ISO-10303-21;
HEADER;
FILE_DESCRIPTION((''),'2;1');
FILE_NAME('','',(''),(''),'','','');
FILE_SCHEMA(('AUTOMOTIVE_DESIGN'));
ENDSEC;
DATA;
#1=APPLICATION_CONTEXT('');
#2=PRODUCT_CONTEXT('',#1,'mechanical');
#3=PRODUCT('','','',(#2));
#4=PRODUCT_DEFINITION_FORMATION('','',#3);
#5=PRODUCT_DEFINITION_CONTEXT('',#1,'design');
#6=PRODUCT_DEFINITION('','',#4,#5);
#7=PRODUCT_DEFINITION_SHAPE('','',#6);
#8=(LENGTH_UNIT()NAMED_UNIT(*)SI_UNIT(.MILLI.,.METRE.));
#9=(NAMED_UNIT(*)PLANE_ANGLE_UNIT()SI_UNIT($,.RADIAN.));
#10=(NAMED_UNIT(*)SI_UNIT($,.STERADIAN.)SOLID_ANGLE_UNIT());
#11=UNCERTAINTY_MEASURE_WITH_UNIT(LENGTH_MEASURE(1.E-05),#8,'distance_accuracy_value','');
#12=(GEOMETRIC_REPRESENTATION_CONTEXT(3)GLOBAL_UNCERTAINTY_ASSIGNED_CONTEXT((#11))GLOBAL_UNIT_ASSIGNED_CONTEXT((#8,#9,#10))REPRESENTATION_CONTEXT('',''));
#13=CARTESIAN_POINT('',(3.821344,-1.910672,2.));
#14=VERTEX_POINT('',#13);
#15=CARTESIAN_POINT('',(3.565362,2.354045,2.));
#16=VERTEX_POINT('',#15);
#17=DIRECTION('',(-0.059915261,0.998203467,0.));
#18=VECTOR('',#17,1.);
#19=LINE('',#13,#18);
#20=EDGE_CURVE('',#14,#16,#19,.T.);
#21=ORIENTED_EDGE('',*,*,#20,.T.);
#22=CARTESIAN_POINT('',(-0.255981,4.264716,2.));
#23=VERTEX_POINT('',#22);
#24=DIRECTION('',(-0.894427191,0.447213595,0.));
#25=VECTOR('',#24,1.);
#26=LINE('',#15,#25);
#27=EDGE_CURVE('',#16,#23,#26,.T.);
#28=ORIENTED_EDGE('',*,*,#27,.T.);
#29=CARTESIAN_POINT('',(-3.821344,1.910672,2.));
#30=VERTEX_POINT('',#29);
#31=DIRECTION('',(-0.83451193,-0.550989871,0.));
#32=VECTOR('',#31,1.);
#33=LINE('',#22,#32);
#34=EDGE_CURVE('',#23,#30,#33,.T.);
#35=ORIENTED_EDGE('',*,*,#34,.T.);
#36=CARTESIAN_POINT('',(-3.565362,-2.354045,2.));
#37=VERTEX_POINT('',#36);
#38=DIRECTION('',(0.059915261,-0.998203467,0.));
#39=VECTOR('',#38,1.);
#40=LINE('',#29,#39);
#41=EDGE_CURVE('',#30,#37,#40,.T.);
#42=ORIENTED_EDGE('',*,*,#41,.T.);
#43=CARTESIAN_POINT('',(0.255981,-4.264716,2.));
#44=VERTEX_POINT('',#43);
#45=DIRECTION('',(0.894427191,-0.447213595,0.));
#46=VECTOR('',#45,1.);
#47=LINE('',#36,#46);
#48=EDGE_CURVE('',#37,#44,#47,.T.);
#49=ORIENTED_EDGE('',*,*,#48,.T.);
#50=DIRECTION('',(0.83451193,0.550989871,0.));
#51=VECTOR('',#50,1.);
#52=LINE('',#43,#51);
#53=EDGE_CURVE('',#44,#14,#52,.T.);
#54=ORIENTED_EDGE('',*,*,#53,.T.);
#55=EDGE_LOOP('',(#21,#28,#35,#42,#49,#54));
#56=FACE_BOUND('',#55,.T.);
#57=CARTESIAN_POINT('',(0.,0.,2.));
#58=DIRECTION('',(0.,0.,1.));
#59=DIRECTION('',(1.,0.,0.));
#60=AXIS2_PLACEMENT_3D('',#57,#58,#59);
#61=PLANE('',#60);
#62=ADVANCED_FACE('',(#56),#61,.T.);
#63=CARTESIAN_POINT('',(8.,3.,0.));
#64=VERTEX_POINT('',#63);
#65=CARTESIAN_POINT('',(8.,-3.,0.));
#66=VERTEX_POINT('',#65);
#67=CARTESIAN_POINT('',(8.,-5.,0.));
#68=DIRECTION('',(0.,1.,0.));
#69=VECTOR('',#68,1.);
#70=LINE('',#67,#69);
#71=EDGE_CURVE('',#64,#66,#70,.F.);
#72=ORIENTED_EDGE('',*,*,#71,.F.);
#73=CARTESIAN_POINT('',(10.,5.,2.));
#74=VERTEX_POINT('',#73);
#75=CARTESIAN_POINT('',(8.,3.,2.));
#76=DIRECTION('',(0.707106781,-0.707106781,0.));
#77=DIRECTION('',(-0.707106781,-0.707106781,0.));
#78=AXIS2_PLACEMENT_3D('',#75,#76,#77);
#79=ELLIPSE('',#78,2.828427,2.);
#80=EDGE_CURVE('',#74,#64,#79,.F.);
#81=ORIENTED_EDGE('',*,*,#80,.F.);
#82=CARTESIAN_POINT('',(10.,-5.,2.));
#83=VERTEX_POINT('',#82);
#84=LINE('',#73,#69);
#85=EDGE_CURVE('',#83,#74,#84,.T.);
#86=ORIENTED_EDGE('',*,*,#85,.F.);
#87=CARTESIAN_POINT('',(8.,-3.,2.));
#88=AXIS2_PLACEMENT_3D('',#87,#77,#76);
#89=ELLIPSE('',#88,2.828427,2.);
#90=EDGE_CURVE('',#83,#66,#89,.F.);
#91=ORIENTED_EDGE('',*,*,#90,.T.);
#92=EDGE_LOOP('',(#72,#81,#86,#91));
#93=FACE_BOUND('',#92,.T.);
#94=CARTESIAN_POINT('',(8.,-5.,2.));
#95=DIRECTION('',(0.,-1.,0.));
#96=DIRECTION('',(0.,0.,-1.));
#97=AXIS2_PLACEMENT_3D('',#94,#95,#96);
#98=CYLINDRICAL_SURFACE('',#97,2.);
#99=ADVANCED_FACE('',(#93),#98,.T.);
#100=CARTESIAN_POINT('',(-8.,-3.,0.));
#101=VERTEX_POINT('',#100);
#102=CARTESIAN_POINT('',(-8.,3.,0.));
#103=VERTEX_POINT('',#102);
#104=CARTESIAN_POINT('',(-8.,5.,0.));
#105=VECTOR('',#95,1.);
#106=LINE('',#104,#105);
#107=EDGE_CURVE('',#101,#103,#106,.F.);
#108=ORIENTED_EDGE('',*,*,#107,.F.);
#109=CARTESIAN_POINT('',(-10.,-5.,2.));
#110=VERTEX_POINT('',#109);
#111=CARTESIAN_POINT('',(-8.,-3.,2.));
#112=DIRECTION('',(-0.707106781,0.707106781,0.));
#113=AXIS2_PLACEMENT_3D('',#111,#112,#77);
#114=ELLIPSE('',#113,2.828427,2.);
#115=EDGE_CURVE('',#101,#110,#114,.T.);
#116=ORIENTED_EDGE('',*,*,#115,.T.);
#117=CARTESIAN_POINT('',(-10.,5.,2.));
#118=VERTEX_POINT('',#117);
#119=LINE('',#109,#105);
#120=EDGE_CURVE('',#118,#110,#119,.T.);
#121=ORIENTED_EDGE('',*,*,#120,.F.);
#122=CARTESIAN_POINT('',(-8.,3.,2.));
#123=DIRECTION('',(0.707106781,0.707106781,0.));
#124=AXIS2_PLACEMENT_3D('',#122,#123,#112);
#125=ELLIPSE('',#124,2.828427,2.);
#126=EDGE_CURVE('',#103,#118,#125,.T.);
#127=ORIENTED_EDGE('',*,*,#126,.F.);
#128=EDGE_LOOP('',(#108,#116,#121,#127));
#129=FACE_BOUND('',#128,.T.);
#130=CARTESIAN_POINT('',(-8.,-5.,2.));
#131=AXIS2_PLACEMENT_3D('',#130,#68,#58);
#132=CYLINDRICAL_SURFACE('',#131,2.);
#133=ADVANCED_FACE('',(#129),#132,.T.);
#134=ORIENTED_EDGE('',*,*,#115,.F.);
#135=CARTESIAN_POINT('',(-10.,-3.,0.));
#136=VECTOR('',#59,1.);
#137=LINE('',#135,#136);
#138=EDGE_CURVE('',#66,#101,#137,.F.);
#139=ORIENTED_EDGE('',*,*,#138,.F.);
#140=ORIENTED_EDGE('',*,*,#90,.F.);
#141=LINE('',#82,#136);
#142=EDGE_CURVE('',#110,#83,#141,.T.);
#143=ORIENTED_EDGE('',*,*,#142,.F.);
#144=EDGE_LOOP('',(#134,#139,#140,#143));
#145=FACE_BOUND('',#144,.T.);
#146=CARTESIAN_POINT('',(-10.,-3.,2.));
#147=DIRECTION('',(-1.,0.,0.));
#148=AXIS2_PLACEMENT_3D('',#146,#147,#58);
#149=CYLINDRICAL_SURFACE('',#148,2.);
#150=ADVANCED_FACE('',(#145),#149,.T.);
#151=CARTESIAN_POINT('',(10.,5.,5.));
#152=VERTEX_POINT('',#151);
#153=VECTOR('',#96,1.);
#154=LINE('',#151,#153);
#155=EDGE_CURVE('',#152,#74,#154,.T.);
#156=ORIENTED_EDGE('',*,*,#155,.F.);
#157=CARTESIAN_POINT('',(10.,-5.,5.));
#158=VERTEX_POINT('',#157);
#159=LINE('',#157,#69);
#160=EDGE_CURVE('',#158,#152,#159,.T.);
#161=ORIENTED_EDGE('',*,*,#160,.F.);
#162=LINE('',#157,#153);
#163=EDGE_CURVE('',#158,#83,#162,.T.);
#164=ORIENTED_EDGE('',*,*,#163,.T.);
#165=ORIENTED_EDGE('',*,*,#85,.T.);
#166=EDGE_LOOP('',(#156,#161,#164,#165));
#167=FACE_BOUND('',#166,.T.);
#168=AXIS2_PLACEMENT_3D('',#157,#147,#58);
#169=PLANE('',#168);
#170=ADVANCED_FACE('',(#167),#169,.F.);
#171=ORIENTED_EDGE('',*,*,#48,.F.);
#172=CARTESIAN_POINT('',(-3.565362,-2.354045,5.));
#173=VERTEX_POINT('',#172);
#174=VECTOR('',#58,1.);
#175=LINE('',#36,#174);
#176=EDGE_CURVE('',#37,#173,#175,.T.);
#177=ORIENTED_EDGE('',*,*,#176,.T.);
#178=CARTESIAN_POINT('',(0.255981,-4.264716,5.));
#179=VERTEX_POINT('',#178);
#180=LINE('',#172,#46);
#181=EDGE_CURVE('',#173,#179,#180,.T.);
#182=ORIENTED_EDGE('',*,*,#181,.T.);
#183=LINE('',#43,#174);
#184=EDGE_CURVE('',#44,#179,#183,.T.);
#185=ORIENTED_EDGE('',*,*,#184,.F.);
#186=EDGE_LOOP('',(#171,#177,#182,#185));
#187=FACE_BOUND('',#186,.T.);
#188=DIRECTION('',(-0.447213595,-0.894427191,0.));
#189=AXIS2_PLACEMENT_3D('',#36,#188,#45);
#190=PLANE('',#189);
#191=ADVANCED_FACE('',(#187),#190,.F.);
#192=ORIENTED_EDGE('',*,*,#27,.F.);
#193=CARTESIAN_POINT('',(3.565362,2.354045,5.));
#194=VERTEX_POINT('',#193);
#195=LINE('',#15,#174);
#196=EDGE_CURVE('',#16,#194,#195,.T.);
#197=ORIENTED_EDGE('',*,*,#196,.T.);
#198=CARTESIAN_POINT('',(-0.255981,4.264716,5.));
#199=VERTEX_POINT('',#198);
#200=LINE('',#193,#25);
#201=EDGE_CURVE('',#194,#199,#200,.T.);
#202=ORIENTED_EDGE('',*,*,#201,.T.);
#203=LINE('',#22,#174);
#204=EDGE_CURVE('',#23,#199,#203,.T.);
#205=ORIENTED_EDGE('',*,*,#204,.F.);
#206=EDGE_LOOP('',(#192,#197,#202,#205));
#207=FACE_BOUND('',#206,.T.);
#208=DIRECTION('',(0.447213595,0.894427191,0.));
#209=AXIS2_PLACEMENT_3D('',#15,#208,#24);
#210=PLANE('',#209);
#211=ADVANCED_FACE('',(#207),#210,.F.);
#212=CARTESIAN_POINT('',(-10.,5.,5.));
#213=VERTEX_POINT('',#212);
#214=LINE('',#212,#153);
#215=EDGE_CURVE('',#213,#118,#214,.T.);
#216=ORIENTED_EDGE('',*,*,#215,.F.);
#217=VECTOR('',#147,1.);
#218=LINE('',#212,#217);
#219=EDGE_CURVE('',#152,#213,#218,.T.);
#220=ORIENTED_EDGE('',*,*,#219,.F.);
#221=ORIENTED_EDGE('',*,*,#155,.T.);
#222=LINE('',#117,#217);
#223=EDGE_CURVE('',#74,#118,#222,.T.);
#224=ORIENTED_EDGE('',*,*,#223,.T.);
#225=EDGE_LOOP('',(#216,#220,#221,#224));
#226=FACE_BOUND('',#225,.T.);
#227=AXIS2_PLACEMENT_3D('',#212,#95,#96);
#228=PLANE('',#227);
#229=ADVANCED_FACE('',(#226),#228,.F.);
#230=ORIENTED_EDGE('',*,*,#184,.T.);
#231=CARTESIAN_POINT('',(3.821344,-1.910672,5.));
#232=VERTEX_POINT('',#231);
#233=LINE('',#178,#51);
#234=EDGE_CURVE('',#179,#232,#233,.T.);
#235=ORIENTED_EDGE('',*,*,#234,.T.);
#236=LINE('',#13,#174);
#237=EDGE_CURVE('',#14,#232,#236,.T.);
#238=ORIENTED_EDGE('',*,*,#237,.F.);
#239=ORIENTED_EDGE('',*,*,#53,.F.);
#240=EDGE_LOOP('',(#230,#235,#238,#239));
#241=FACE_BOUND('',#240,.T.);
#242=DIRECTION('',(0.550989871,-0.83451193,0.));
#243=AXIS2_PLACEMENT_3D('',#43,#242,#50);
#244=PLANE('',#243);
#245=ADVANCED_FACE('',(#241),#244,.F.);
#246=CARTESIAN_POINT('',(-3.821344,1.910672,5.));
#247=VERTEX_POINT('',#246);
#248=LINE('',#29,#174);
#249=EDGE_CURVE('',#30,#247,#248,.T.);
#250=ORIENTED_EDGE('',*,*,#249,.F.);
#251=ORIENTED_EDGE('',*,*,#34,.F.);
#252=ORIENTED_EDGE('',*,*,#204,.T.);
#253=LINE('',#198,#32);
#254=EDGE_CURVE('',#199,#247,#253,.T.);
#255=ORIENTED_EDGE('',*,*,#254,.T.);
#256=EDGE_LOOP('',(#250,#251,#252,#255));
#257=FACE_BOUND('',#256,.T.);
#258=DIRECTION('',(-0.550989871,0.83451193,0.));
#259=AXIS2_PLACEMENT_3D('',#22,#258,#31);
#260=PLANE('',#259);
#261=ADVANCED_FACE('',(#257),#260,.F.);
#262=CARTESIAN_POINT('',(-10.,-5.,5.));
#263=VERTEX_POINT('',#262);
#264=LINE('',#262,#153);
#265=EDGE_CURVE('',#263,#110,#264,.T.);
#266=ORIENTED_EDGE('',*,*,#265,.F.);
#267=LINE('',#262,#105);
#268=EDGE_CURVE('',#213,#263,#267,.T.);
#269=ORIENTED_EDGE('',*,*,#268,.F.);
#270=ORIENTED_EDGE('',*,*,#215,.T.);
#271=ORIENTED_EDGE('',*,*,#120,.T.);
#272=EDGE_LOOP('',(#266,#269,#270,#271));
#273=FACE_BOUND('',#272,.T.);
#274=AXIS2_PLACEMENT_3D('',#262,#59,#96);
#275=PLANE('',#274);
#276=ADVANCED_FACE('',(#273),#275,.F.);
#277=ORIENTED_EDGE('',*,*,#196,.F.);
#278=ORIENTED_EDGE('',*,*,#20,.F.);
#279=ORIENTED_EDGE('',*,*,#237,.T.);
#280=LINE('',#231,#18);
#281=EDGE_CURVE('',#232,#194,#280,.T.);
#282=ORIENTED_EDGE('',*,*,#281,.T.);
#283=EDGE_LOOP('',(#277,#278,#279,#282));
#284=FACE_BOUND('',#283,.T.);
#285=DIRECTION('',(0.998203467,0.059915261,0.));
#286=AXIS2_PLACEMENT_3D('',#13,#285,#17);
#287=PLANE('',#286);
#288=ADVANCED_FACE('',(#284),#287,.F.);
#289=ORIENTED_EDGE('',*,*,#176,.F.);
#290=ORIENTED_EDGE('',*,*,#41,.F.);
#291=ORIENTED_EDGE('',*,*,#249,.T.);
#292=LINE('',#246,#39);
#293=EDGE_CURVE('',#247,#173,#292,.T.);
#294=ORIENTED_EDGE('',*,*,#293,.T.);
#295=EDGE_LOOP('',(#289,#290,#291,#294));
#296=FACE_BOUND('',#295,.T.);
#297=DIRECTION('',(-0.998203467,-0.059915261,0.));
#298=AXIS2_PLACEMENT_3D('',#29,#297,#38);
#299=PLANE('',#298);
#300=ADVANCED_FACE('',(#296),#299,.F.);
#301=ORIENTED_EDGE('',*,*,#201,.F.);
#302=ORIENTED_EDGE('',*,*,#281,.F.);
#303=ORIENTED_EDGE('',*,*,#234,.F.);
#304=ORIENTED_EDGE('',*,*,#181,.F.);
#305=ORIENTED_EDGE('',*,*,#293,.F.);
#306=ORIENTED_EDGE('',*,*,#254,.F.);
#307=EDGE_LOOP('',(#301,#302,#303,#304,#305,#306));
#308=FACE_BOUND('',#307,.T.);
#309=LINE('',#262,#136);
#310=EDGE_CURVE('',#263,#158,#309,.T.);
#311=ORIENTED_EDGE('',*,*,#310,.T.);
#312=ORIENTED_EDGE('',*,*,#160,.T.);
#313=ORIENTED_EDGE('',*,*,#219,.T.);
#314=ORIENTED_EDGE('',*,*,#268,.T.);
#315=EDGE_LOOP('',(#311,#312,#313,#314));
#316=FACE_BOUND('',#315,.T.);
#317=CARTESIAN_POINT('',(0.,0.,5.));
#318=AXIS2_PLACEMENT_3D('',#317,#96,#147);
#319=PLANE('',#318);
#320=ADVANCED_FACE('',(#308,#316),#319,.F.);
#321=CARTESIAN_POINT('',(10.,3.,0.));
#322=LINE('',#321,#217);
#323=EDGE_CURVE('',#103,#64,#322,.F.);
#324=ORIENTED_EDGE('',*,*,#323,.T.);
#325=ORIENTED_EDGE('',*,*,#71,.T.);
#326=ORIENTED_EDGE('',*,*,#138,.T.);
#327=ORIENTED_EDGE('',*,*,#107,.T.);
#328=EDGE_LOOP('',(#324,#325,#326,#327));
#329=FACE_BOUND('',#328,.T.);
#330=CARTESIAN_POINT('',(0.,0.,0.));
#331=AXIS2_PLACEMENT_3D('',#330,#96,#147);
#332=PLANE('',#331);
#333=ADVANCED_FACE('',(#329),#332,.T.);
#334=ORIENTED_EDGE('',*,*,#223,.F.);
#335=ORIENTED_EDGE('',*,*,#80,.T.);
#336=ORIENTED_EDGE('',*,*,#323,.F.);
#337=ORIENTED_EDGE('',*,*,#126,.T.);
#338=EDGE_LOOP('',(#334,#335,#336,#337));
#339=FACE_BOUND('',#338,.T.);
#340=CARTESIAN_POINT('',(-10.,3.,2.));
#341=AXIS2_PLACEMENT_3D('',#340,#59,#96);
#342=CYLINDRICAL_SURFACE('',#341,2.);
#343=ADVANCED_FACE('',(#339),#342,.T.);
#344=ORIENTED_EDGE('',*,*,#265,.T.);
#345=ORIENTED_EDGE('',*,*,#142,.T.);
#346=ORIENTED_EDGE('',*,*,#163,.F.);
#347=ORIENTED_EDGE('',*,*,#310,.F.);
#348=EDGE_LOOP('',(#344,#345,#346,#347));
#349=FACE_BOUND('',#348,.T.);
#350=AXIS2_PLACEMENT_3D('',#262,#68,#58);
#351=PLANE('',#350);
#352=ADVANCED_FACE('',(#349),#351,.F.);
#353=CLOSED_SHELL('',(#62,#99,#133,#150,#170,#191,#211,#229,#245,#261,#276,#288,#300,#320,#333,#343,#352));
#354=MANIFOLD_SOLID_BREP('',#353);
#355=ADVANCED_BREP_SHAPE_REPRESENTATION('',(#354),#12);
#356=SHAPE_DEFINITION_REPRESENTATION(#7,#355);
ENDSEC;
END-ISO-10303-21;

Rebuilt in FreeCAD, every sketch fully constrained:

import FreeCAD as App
import Part
import Sketcher

V = App.Vector


def edges_at(feature, points):
    """Names of the edges that pass closest to the given points."""
    edges = feature.Shape.Edges
    near = lambda p: min(range(len(edges)), key=lambda i: edges[i].distToShape(Part.Vertex(*p))[0])
    return sorted({f"Edge{near(p) + 1}" for p in points})


def add_polygon(sketch, points):
    """Adds a closed chain of lines whose ends are joined by coincident constraints."""
    first, n = sketch.GeometryCount, len(points)
    for a, b in zip(points, points[1:] + points[:1]):
        sketch.addGeometry(Part.LineSegment(App.Vector(*a, 0), App.Vector(*b, 0)), False)
    for i in range(n):
        sketch.addConstraint(Sketcher.Constraint("Coincident", first + i, 2, first + (i + 1) % n, 1))

doc = App.newDocument("Part")
params = doc.addObject("Spreadsheet::Sheet", "Params")
for row, (alias, value) in enumerate([
    ("sketch1_width", "20 mm"),
    ("sketch1_height", "10 mm"),
    ("pad1_length", "5 mm"),
    ("pocket1_length", "3 mm"),
    ("fillet_radius", "2 mm"),
], start=1):
    params.set(f"A{row}", alias)
    params.set(f"B{row}", "=" + value)
    params.setAlias(f"B{row}", alias)

body = doc.addObject("PartDesign::Body", "Body")

# Sketch on XY plane
sketch1 = doc.addObject("Sketcher::SketchObject", "Sketch")
body.addObject(sketch1)
sketch1.AttachmentSupport = (doc.XY_Plane, [""])
sketch1.MapMode = "FlatFace"
add_polygon(sketch1, [(-10, 5), (-10, -5), (10, -5), (10, 5)])  # lines 0-3
sketch1.addConstraint(Sketcher.Constraint("Vertical", 0))
sketch1.addConstraint(Sketcher.Constraint("Horizontal", 1))
sketch1.addConstraint(Sketcher.Constraint("Vertical", 2))
sketch1.addConstraint(Sketcher.Constraint("Horizontal", 3))
sketch1.addConstraint(Sketcher.Constraint("Symmetric", 0, 2, 2, 2, -1, 1))
sketch1.addConstraint(Sketcher.Constraint("DistanceX", 1, 1, 1, 2, 20.0))
sketch1.addConstraint(Sketcher.Constraint("DistanceY", 0, 2, 0, 1, 10.0))
sketch1.setExpression("Constraints[9]", "Params.sketch1_width")
sketch1.setExpression("Constraints[10]", "Params.sketch1_height")
pad1 = doc.addObject("PartDesign::Pad", "Pad")
body.addObject(pad1)
pad1.Profile = sketch1
pad1.setExpression("Length", "Params.pad1_length")

# Sketch on XY plane
sketch2 = doc.addObject("Sketcher::SketchObject", "Sketch001")
body.addObject(sketch2)
sketch2.AttachmentSupport = (doc.XY_Plane, [""])
sketch2.MapMode = "FlatFace"
sketch2.AttachmentOffset = App.Placement(V(0, 0, 5), App.Rotation())
add_polygon(sketch2, [(0.255981, -4.264716), (3.821344, -1.910672), (3.565362, 2.354045), (-0.255981, 4.264716), (-3.821344, 1.910672), (-3.565362, -2.354045)])  # lines 0-5
sketch2.addConstraint(Sketcher.Constraint("Symmetric", 0, 2, 3, 2, -1, 1))
sketch2.addConstraint(Sketcher.Constraint("Symmetric", 1, 2, 4, 2, -1, 1))
sketch2.addConstraint(Sketcher.Constraint("Symmetric", 2, 2, 5, 2, -1, 1))
sketch2.addConstraint(Sketcher.Constraint("Equal", 0, 1))
sketch2.addConstraint(Sketcher.Constraint("Equal", 1, 2))
sketch2.addConstraint(Sketcher.Constraint("Distance", 0, 4.272392))
sketch2.addConstraint(Sketcher.Constraint("DistanceY", 0, 2, -1, 1, 1.910672))
sketch2.addConstraint(Sketcher.Constraint("DistanceX", 2, 2, -1, 1, 0.255981))
sketch2.addConstraint(Sketcher.Constraint("DistanceX", 1, 2, 0, 2, 0.255981))
pocket1 = doc.addObject("PartDesign::Pocket", "Pocket")
body.addObject(pocket1)
pocket1.Profile = sketch2
pocket1.setExpression("Length", "Params.pocket1_length")
doc.recompute()

fillet = doc.addObject("PartDesign::Fillet", "Fillet")
body.addObject(fillet)
fillet.Base = (pocket1, edges_at(pocket1, [
    (0, -5, 0),
    (-10, 0, 0),
    (0, 5, 0),
    (10, 0, 0),
]))
fillet.setExpression("Radius", "Params.fillet_radius")

doc.recompute()
